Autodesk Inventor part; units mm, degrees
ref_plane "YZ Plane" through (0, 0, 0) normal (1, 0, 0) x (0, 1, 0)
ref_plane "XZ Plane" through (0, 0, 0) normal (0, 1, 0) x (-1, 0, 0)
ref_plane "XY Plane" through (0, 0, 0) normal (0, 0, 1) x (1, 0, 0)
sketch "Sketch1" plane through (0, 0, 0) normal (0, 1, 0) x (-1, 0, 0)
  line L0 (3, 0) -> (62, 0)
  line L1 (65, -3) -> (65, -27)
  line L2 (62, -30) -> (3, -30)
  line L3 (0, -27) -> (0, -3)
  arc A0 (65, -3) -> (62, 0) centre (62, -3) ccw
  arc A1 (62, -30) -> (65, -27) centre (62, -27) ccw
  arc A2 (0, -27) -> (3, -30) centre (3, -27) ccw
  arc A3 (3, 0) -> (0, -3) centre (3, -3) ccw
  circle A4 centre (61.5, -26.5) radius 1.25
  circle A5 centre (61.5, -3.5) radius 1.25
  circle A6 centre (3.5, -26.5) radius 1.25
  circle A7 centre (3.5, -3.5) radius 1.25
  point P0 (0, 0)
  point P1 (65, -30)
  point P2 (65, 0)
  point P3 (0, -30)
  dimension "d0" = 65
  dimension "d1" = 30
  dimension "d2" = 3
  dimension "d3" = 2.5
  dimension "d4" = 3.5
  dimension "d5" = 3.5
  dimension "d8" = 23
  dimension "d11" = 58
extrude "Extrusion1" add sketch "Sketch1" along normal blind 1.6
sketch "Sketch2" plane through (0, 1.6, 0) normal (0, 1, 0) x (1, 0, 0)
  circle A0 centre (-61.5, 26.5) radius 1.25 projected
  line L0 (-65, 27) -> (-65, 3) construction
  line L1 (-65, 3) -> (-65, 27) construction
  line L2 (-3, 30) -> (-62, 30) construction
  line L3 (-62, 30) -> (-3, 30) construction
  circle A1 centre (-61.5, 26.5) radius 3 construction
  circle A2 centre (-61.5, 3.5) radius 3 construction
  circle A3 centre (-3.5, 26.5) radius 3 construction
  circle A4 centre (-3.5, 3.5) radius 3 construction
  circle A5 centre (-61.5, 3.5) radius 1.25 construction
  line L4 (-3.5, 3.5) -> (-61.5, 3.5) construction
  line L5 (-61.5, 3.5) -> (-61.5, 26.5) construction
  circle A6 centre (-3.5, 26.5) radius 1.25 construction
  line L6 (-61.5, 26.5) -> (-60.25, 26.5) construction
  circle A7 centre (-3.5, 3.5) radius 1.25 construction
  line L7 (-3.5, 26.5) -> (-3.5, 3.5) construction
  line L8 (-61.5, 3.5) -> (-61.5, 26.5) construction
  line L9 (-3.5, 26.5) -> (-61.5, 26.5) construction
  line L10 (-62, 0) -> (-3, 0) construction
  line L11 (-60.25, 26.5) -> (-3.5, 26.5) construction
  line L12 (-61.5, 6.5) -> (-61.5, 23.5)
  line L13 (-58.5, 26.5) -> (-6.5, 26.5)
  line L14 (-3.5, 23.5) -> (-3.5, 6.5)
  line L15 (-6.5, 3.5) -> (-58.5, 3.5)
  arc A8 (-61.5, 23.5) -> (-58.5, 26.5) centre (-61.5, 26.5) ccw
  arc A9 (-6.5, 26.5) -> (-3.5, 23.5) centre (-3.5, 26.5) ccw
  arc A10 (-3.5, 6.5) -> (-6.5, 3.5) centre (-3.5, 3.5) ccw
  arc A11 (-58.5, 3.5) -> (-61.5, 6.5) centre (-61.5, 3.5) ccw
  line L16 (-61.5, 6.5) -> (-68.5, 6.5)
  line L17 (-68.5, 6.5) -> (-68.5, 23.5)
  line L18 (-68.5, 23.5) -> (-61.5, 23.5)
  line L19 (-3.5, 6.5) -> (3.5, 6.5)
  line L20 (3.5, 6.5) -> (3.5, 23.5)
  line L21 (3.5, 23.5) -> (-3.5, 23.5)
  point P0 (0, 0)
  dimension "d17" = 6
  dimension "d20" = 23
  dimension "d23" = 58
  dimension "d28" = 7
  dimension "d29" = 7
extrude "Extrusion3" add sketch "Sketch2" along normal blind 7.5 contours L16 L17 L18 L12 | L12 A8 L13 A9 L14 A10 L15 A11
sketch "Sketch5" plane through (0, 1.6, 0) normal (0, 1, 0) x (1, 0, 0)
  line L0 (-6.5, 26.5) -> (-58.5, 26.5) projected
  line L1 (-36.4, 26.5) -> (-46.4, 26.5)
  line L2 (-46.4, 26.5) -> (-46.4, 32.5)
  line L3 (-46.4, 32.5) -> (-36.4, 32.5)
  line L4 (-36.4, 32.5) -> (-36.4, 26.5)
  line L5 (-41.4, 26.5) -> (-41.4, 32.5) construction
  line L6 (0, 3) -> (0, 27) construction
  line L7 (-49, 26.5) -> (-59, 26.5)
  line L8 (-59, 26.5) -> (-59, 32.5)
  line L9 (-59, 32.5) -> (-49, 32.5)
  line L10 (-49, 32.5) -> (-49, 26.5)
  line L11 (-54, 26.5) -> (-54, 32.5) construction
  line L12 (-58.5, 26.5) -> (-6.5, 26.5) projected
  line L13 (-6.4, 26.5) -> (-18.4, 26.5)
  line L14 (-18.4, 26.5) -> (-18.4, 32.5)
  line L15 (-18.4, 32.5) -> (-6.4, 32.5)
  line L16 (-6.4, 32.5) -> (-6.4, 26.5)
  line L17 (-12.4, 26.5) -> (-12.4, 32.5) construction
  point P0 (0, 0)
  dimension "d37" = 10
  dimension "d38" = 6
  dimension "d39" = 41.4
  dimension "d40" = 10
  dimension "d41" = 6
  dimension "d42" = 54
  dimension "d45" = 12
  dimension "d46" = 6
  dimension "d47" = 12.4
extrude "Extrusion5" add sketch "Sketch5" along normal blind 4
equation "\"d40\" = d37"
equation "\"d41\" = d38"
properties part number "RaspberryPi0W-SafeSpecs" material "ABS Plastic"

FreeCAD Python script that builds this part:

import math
import FreeCAD as App
import Part
import Sketcher
Q = App.Units.Quantity

doc = App.newDocument("Part")
params = doc.addObject("Spreadsheet::Sheet", "Params")
for row, (alias, value) in enumerate([
    ("sketch1_radius", "3 mm"),
    ("sketch1_diameter", "2.5 mm"),
    ("pad1_length", "1.6 mm"),
    ("sketch2_radius", "3 mm"),
    ("sketch2_width", "7 mm"),
    ("pad2_length", "7.5 mm"),
    ("sketch3_width", "10 mm"),
    ("sketch3_width2", "12 mm"),
    ("sketch3_height", "6 mm"),
    ("pad3_length", "4 mm"),
], start=1):
    params.set(f"A{row}", alias)
    params.set(f"B{row}", "=" + value)
    params.setAlias(f"B{row}", alias)

body = doc.addObject("PartDesign::Body", "Body")

sketch1 = body.newObject("Sketcher::SketchObject", "Sketch")
sketch1.AttachmentSupport = (doc.getObject("XZ_Plane"), [""])
sketch1.MapMode = "FlatFace"
sketch1.addGeometry([
    Part.LineSegment(App.Vector(-62, 0, 0), App.Vector(-3, 0, 0)),
    Part.ArcOfCircle(Part.Circle(App.Vector(-3, -3, 0), App.Vector(0, 0, 1), 3), math.radians(0), math.radians(90)),
    Part.LineSegment(App.Vector(0, -3, 0), App.Vector(0, -27, 0)),
    Part.ArcOfCircle(Part.Circle(App.Vector(-3, -27, 0), App.Vector(0, 0, 1), 3), math.radians(-90), math.radians(0)),
    Part.LineSegment(App.Vector(-3, -30, 0), App.Vector(-62, -30, 0)),
    Part.ArcOfCircle(Part.Circle(App.Vector(-62, -27, 0), App.Vector(0, 0, 1), 3), math.radians(180), math.radians(270)),
    Part.LineSegment(App.Vector(-65, -27, 0), App.Vector(-65, -3, 0)),
    Part.ArcOfCircle(Part.Circle(App.Vector(-62, -3, 0), App.Vector(0, 0, 1), 3), math.radians(90), math.radians(180)),
    Part.Circle(App.Vector(-3.5, -26.5, 0), App.Vector(0, 0, 1), 1.2),
    Part.Circle(App.Vector(-61.5, -26.5, 0), App.Vector(0, 0, 1), 1.2),
    Part.Circle(App.Vector(-3.5, -3.5, 0), App.Vector(0, 0, 1), 1.2),
    Part.Circle(App.Vector(-61.5, -3.5, 0), App.Vector(0, 0, 1), 1.2),
], False)
sketch1.addConstraint([
    Sketcher.Constraint("Tangent", 0, 2, 1, 2),
    Sketcher.Constraint("Tangent", 1, 1, 2, 1),
    Sketcher.Constraint("Tangent", 2, 2, 3, 2),
    Sketcher.Constraint("Tangent", 3, 1, 4, 1),
    Sketcher.Constraint("Tangent", 4, 2, 5, 2),
    Sketcher.Constraint("Tangent", 5, 1, 6, 1),
    Sketcher.Constraint("Tangent", 6, 2, 7, 2),
    Sketcher.Constraint("Tangent", 7, 1, 0, 1),
    Sketcher.Constraint("Horizontal", 0),
    Sketcher.Constraint("Vertical", 2),
    Sketcher.Constraint("Horizontal", 4),
    Sketcher.Constraint("Vertical", 6),
    Sketcher.Constraint("Equal", 1, 3),
    Sketcher.Constraint("Equal", 3, 5),
    Sketcher.Constraint("Equal", 5, 7),
    Sketcher.Constraint("Equal", 8, 9),
    Sketcher.Constraint("Equal", 9, 10),
    Sketcher.Constraint("Equal", 10, 11),
    Sketcher.Constraint("PointOnObject", 0, 2, -1),
    Sketcher.Constraint("PointOnObject", 1, 1, -2),
    Sketcher.Constraint("Horizontal", 8, 3, 9, 3),
    Sketcher.Constraint("Horizontal", 10, 3, 11, 3),
    Sketcher.Constraint("Vertical", 8, 3, 10, 3),
    Sketcher.Constraint("Vertical", 9, 3, 11, 3),
    Sketcher.Constraint("Radius", 1, Q("3 mm")),
    Sketcher.Constraint("Diameter", 8, Q("2.5 mm")),
    Sketcher.Constraint("DistanceY", 3, 1, -1, 1, Q("30 mm")),
    Sketcher.Constraint("DistanceX", 5, 1, -1, 1, Q("65 mm")),
    Sketcher.Constraint("DistanceX", 9, 3, 8, 3, Q("58 mm")),
    Sketcher.Constraint("DistanceY", 8, 3, 10, 3, Q("23 mm")),
    Sketcher.Constraint("DistanceX", 8, 3, -1, 1, Q("3.5 mm")),
    Sketcher.Constraint("DistanceY", 10, 3, -1, 1, Q("3.5 mm")),
])
sketch1.setExpression("Constraints[24]", "Params.sketch1_radius")
sketch1.setExpression("Constraints[25]", "Params.sketch1_diameter")
pad1 = body.newObject("PartDesign::Pad", "Pad")
pad1.Profile = sketch1
pad1.setExpression("Length", "Params.pad1_length")
pad1.Reversed = True

sketch2 = body.newObject("Sketcher::SketchObject", "Sketch001")
sketch2.AttachmentSupport = (doc.getObject("XZ_Plane"), [""])
sketch2.MapMode = "FlatFace"
sketch2.AttachmentOffset = App.Placement(App.Vector(0, 0, -1.6), App.Rotation())
sketch2.addGeometry([
    Part.LineSegment(App.Vector(-68.5, -6.5, 0), App.Vector(-61.5, -6.5, 0)),
    Part.ArcOfCircle(Part.Circle(App.Vector(-61.5, -3.5, 0), App.Vector(0, 0, 1), 3), math.radians(-90), math.radians(0)),
    Part.LineSegment(App.Vector(-58.5, -3.5, 0), App.Vector(-6.5, -3.5, 0)),
    Part.ArcOfCircle(Part.Circle(App.Vector(-3.5, -3.5, 0), App.Vector(0, 0, 1), 3), math.radians(180), math.radians(270)),
    Part.LineSegment(App.Vector(-3.5, -6.5, 0), App.Vector(-3.5, -23.5, 0)),
    Part.ArcOfCircle(Part.Circle(App.Vector(-3.5, -26.5, 0), App.Vector(0, 0, 1), 3), math.radians(90), math.radians(180)),
    Part.LineSegment(App.Vector(-6.5, -26.5, 0), App.Vector(-58.5, -26.5, 0)),
    Part.ArcOfCircle(Part.Circle(App.Vector(-61.5, -26.5, 0), App.Vector(0, 0, 1), 3), math.radians(0), math.radians(90)),
    Part.LineSegment(App.Vector(-61.5, -23.5, 0), App.Vector(-68.5, -23.5, 0)),
    Part.LineSegment(App.Vector(-68.5, -23.5, 0), App.Vector(-68.5, -6.5, 0)),
], False)
sketch2.addConstraint([
    Sketcher.Constraint("Tangent", 0, 2, 1, 1),
    Sketcher.Constraint("Coincident", 1, 2, 2, 1),
    Sketcher.Constraint("Coincident", 2, 2, 3, 1),
    Sketcher.Constraint("Coincident", 3, 2, 4, 1),
    Sketcher.Constraint("Coincident", 4, 2, 5, 1),
    Sketcher.Constraint("Coincident", 5, 2, 6, 1),
    Sketcher.Constraint("Coincident", 6, 2, 7, 1),
    Sketcher.Constraint("Tangent", 7, 2, 8, 1),
    Sketcher.Constraint("Coincident", 8, 2, 9, 1),
    Sketcher.Constraint("Coincident", 9, 2, 0, 1),
    Sketcher.Constraint("Horizontal", 0),
    Sketcher.Constraint("Horizontal", 2),
    Sketcher.Constraint("Vertical", 4),
    Sketcher.Constraint("Horizontal", 6),
    Sketcher.Constraint("Horizontal", 8),
    Sketcher.Constraint("Vertical", 9),
    Sketcher.Constraint("Equal", 1, 3),
    Sketcher.Constraint("Equal", 3, 5),
    Sketcher.Constraint("Equal", 5, 7),
    Sketcher.Constraint("Horizontal", 1, 3, 3, 3),
    Sketcher.Constraint("Horizontal", 5, 3, 7, 3),
    Sketcher.Constraint("Horizontal", 3, 3, 1, 2),
    Sketcher.Constraint("Horizontal", 7, 3, 5, 2),
    Sketcher.Constraint("Vertical", 3, 3, 5, 3),
    Sketcher.Constraint("Vertical", 1, 3, 7, 3),
    Sketcher.Constraint("Vertical", 5, 3, 3, 2),
    Sketcher.Constraint("Radius", 1, Q("3 mm")),
    Sketcher.Constraint("DistanceX", 0, 1, 0, 2, Q("7 mm")),
    Sketcher.Constraint("DistanceX", 1, 3, 3, 3, Q("58 mm")),
    Sketcher.Constraint("DistanceY", 5, 3, 3, 3, Q("23 mm")),
    Sketcher.Constraint("DistanceX", 1, 3, -1, 1, Q("61.5 mm")),
    Sketcher.Constraint("DistanceY", 1, 3, -1, 1, Q("3.5 mm")),
])
sketch2.setExpression("Constraints[26]", "Params.sketch2_radius")
sketch2.setExpression("Constraints[27]", "Params.sketch2_width")
pad2 = body.newObject("PartDesign::Pad", "Pad001")
pad2.Profile = sketch2
pad2.setExpression("Length", "Params.pad2_length")
pad2.Reversed = True

sketch3 = body.newObject("Sketcher::SketchObject", "Sketch002")
sketch3.AttachmentSupport = (doc.getObject("XZ_Plane"), [""])
sketch3.MapMode = "FlatFace"
sketch3.AttachmentOffset = App.Placement(App.Vector(0, 0, -1.6), App.Rotation())
sketch3.addGeometry([
    Part.LineSegment(App.Vector(-59, -26, 0), App.Vector(-49, -26, 0)),
    Part.LineSegment(App.Vector(-49, -26, 0), App.Vector(-49, -32, 0)),
    Part.LineSegment(App.Vector(-49, -32, 0), App.Vector(-59, -32, 0)),
    Part.LineSegment(App.Vector(-59, -32, 0), App.Vector(-59, -26, 0)),
    Part.LineSegment(App.Vector(-46, -26, 0), App.Vector(-36, -26, 0)),
    Part.LineSegment(App.Vector(-36, -26, 0), App.Vector(-36, -32, 0)),
    Part.LineSegment(App.Vector(-36, -32, 0), App.Vector(-46, -32, 0)),
    Part.LineSegment(App.Vector(-46, -32, 0), App.Vector(-46, -26, 0)),
    Part.LineSegment(App.Vector(-18, -26, 0), App.Vector(-6, -26, 0)),
    Part.LineSegment(App.Vector(-6, -26, 0), App.Vector(-6, -32, 0)),
    Part.LineSegment(App.Vector(-6, -32, 0), App.Vector(-18, -32, 0)),
    Part.LineSegment(App.Vector(-18, -32, 0), App.Vector(-18, -26, 0)),
], False)
sketch3.addConstraint([
    Sketcher.Constraint("Coincident", 0, 2, 1, 1),
    Sketcher.Constraint("Coincident", 1, 2, 2, 1),
    Sketcher.Constraint("Coincident", 2, 2, 3, 1),
    Sketcher.Constraint("Coincident", 3, 2, 0, 1),
    Sketcher.Constraint("Coincident", 4, 2, 5, 1),
    Sketcher.Constraint("Coincident", 5, 2, 6, 1),
    Sketcher.Constraint("Coincident", 6, 2, 7, 1),
    Sketcher.Constraint("Coincident", 7, 2, 4, 1),
    Sketcher.Constraint("Coincident", 8, 2, 9, 1),
    Sketcher.Constraint("Coincident", 9, 2, 10, 1),
    Sketcher.Constraint("Coincident", 10, 2, 11, 1),
    Sketcher.Constraint("Coincident", 11, 2, 8, 1),
    Sketcher.Constraint("Horizontal", 0),
    Sketcher.Constraint("Vertical", 1),
    Sketcher.Constraint("Horizontal", 2),
    Sketcher.Constraint("Vertical", 3),
    Sketcher.Constraint("Horizontal", 4),
    Sketcher.Constraint("Vertical", 5),
    Sketcher.Constraint("Horizontal", 6),
    Sketcher.Constraint("Vertical", 7),
    Sketcher.Constraint("Horizontal", 8),
    Sketcher.Constraint("Vertical", 9),
    Sketcher.Constraint("Horizontal", 10),
    Sketcher.Constraint("Vertical", 11),
    Sketcher.Constraint("Horizontal", 3, 2, 4, 2),
    Sketcher.Constraint("Horizontal", 2, 2, 5, 2),
    Sketcher.Constraint("Horizontal", 7, 2, 8, 2),
    Sketcher.Constraint("Horizontal", 6, 2, 9, 2),
    Sketcher.Constraint("Equal", 2, 4),
    Sketcher.Constraint("DistanceX", 0, 1, 0, 2, Q("10 mm")),
    Sketcher.Constraint("DistanceX", 8, 1, 8, 2, Q("12 mm")),
    Sketcher.Constraint("DistanceY", 1, 2, 1, 1, Q("6 mm")),
    Sketcher.Constraint("DistanceX", 0, 2, -1, 1, Q("49 mm")),
    Sketcher.Constraint("DistanceX", 4, 2, 8, 2, Q("30 mm")),
    Sketcher.Constraint("DistanceY", 0, 2, -1, 1, Q("26.5 mm")),
    Sketcher.Constraint("DistanceX", 4, 2, -1, 1, Q("36.4 mm")),
])
sketch3.setExpression("Constraints[29]", "Params.sketch3_width")
sketch3.setExpression("Constraints[30]", "Params.sketch3_width2")
sketch3.setExpression("Constraints[31]", "Params.sketch3_height")
pad3 = body.newObject("PartDesign::Pad", "Pad002")
pad3.Profile = sketch3
pad3.setExpression("Length", "Params.pad3_length")
pad3.Reversed = True

doc.recompute()
